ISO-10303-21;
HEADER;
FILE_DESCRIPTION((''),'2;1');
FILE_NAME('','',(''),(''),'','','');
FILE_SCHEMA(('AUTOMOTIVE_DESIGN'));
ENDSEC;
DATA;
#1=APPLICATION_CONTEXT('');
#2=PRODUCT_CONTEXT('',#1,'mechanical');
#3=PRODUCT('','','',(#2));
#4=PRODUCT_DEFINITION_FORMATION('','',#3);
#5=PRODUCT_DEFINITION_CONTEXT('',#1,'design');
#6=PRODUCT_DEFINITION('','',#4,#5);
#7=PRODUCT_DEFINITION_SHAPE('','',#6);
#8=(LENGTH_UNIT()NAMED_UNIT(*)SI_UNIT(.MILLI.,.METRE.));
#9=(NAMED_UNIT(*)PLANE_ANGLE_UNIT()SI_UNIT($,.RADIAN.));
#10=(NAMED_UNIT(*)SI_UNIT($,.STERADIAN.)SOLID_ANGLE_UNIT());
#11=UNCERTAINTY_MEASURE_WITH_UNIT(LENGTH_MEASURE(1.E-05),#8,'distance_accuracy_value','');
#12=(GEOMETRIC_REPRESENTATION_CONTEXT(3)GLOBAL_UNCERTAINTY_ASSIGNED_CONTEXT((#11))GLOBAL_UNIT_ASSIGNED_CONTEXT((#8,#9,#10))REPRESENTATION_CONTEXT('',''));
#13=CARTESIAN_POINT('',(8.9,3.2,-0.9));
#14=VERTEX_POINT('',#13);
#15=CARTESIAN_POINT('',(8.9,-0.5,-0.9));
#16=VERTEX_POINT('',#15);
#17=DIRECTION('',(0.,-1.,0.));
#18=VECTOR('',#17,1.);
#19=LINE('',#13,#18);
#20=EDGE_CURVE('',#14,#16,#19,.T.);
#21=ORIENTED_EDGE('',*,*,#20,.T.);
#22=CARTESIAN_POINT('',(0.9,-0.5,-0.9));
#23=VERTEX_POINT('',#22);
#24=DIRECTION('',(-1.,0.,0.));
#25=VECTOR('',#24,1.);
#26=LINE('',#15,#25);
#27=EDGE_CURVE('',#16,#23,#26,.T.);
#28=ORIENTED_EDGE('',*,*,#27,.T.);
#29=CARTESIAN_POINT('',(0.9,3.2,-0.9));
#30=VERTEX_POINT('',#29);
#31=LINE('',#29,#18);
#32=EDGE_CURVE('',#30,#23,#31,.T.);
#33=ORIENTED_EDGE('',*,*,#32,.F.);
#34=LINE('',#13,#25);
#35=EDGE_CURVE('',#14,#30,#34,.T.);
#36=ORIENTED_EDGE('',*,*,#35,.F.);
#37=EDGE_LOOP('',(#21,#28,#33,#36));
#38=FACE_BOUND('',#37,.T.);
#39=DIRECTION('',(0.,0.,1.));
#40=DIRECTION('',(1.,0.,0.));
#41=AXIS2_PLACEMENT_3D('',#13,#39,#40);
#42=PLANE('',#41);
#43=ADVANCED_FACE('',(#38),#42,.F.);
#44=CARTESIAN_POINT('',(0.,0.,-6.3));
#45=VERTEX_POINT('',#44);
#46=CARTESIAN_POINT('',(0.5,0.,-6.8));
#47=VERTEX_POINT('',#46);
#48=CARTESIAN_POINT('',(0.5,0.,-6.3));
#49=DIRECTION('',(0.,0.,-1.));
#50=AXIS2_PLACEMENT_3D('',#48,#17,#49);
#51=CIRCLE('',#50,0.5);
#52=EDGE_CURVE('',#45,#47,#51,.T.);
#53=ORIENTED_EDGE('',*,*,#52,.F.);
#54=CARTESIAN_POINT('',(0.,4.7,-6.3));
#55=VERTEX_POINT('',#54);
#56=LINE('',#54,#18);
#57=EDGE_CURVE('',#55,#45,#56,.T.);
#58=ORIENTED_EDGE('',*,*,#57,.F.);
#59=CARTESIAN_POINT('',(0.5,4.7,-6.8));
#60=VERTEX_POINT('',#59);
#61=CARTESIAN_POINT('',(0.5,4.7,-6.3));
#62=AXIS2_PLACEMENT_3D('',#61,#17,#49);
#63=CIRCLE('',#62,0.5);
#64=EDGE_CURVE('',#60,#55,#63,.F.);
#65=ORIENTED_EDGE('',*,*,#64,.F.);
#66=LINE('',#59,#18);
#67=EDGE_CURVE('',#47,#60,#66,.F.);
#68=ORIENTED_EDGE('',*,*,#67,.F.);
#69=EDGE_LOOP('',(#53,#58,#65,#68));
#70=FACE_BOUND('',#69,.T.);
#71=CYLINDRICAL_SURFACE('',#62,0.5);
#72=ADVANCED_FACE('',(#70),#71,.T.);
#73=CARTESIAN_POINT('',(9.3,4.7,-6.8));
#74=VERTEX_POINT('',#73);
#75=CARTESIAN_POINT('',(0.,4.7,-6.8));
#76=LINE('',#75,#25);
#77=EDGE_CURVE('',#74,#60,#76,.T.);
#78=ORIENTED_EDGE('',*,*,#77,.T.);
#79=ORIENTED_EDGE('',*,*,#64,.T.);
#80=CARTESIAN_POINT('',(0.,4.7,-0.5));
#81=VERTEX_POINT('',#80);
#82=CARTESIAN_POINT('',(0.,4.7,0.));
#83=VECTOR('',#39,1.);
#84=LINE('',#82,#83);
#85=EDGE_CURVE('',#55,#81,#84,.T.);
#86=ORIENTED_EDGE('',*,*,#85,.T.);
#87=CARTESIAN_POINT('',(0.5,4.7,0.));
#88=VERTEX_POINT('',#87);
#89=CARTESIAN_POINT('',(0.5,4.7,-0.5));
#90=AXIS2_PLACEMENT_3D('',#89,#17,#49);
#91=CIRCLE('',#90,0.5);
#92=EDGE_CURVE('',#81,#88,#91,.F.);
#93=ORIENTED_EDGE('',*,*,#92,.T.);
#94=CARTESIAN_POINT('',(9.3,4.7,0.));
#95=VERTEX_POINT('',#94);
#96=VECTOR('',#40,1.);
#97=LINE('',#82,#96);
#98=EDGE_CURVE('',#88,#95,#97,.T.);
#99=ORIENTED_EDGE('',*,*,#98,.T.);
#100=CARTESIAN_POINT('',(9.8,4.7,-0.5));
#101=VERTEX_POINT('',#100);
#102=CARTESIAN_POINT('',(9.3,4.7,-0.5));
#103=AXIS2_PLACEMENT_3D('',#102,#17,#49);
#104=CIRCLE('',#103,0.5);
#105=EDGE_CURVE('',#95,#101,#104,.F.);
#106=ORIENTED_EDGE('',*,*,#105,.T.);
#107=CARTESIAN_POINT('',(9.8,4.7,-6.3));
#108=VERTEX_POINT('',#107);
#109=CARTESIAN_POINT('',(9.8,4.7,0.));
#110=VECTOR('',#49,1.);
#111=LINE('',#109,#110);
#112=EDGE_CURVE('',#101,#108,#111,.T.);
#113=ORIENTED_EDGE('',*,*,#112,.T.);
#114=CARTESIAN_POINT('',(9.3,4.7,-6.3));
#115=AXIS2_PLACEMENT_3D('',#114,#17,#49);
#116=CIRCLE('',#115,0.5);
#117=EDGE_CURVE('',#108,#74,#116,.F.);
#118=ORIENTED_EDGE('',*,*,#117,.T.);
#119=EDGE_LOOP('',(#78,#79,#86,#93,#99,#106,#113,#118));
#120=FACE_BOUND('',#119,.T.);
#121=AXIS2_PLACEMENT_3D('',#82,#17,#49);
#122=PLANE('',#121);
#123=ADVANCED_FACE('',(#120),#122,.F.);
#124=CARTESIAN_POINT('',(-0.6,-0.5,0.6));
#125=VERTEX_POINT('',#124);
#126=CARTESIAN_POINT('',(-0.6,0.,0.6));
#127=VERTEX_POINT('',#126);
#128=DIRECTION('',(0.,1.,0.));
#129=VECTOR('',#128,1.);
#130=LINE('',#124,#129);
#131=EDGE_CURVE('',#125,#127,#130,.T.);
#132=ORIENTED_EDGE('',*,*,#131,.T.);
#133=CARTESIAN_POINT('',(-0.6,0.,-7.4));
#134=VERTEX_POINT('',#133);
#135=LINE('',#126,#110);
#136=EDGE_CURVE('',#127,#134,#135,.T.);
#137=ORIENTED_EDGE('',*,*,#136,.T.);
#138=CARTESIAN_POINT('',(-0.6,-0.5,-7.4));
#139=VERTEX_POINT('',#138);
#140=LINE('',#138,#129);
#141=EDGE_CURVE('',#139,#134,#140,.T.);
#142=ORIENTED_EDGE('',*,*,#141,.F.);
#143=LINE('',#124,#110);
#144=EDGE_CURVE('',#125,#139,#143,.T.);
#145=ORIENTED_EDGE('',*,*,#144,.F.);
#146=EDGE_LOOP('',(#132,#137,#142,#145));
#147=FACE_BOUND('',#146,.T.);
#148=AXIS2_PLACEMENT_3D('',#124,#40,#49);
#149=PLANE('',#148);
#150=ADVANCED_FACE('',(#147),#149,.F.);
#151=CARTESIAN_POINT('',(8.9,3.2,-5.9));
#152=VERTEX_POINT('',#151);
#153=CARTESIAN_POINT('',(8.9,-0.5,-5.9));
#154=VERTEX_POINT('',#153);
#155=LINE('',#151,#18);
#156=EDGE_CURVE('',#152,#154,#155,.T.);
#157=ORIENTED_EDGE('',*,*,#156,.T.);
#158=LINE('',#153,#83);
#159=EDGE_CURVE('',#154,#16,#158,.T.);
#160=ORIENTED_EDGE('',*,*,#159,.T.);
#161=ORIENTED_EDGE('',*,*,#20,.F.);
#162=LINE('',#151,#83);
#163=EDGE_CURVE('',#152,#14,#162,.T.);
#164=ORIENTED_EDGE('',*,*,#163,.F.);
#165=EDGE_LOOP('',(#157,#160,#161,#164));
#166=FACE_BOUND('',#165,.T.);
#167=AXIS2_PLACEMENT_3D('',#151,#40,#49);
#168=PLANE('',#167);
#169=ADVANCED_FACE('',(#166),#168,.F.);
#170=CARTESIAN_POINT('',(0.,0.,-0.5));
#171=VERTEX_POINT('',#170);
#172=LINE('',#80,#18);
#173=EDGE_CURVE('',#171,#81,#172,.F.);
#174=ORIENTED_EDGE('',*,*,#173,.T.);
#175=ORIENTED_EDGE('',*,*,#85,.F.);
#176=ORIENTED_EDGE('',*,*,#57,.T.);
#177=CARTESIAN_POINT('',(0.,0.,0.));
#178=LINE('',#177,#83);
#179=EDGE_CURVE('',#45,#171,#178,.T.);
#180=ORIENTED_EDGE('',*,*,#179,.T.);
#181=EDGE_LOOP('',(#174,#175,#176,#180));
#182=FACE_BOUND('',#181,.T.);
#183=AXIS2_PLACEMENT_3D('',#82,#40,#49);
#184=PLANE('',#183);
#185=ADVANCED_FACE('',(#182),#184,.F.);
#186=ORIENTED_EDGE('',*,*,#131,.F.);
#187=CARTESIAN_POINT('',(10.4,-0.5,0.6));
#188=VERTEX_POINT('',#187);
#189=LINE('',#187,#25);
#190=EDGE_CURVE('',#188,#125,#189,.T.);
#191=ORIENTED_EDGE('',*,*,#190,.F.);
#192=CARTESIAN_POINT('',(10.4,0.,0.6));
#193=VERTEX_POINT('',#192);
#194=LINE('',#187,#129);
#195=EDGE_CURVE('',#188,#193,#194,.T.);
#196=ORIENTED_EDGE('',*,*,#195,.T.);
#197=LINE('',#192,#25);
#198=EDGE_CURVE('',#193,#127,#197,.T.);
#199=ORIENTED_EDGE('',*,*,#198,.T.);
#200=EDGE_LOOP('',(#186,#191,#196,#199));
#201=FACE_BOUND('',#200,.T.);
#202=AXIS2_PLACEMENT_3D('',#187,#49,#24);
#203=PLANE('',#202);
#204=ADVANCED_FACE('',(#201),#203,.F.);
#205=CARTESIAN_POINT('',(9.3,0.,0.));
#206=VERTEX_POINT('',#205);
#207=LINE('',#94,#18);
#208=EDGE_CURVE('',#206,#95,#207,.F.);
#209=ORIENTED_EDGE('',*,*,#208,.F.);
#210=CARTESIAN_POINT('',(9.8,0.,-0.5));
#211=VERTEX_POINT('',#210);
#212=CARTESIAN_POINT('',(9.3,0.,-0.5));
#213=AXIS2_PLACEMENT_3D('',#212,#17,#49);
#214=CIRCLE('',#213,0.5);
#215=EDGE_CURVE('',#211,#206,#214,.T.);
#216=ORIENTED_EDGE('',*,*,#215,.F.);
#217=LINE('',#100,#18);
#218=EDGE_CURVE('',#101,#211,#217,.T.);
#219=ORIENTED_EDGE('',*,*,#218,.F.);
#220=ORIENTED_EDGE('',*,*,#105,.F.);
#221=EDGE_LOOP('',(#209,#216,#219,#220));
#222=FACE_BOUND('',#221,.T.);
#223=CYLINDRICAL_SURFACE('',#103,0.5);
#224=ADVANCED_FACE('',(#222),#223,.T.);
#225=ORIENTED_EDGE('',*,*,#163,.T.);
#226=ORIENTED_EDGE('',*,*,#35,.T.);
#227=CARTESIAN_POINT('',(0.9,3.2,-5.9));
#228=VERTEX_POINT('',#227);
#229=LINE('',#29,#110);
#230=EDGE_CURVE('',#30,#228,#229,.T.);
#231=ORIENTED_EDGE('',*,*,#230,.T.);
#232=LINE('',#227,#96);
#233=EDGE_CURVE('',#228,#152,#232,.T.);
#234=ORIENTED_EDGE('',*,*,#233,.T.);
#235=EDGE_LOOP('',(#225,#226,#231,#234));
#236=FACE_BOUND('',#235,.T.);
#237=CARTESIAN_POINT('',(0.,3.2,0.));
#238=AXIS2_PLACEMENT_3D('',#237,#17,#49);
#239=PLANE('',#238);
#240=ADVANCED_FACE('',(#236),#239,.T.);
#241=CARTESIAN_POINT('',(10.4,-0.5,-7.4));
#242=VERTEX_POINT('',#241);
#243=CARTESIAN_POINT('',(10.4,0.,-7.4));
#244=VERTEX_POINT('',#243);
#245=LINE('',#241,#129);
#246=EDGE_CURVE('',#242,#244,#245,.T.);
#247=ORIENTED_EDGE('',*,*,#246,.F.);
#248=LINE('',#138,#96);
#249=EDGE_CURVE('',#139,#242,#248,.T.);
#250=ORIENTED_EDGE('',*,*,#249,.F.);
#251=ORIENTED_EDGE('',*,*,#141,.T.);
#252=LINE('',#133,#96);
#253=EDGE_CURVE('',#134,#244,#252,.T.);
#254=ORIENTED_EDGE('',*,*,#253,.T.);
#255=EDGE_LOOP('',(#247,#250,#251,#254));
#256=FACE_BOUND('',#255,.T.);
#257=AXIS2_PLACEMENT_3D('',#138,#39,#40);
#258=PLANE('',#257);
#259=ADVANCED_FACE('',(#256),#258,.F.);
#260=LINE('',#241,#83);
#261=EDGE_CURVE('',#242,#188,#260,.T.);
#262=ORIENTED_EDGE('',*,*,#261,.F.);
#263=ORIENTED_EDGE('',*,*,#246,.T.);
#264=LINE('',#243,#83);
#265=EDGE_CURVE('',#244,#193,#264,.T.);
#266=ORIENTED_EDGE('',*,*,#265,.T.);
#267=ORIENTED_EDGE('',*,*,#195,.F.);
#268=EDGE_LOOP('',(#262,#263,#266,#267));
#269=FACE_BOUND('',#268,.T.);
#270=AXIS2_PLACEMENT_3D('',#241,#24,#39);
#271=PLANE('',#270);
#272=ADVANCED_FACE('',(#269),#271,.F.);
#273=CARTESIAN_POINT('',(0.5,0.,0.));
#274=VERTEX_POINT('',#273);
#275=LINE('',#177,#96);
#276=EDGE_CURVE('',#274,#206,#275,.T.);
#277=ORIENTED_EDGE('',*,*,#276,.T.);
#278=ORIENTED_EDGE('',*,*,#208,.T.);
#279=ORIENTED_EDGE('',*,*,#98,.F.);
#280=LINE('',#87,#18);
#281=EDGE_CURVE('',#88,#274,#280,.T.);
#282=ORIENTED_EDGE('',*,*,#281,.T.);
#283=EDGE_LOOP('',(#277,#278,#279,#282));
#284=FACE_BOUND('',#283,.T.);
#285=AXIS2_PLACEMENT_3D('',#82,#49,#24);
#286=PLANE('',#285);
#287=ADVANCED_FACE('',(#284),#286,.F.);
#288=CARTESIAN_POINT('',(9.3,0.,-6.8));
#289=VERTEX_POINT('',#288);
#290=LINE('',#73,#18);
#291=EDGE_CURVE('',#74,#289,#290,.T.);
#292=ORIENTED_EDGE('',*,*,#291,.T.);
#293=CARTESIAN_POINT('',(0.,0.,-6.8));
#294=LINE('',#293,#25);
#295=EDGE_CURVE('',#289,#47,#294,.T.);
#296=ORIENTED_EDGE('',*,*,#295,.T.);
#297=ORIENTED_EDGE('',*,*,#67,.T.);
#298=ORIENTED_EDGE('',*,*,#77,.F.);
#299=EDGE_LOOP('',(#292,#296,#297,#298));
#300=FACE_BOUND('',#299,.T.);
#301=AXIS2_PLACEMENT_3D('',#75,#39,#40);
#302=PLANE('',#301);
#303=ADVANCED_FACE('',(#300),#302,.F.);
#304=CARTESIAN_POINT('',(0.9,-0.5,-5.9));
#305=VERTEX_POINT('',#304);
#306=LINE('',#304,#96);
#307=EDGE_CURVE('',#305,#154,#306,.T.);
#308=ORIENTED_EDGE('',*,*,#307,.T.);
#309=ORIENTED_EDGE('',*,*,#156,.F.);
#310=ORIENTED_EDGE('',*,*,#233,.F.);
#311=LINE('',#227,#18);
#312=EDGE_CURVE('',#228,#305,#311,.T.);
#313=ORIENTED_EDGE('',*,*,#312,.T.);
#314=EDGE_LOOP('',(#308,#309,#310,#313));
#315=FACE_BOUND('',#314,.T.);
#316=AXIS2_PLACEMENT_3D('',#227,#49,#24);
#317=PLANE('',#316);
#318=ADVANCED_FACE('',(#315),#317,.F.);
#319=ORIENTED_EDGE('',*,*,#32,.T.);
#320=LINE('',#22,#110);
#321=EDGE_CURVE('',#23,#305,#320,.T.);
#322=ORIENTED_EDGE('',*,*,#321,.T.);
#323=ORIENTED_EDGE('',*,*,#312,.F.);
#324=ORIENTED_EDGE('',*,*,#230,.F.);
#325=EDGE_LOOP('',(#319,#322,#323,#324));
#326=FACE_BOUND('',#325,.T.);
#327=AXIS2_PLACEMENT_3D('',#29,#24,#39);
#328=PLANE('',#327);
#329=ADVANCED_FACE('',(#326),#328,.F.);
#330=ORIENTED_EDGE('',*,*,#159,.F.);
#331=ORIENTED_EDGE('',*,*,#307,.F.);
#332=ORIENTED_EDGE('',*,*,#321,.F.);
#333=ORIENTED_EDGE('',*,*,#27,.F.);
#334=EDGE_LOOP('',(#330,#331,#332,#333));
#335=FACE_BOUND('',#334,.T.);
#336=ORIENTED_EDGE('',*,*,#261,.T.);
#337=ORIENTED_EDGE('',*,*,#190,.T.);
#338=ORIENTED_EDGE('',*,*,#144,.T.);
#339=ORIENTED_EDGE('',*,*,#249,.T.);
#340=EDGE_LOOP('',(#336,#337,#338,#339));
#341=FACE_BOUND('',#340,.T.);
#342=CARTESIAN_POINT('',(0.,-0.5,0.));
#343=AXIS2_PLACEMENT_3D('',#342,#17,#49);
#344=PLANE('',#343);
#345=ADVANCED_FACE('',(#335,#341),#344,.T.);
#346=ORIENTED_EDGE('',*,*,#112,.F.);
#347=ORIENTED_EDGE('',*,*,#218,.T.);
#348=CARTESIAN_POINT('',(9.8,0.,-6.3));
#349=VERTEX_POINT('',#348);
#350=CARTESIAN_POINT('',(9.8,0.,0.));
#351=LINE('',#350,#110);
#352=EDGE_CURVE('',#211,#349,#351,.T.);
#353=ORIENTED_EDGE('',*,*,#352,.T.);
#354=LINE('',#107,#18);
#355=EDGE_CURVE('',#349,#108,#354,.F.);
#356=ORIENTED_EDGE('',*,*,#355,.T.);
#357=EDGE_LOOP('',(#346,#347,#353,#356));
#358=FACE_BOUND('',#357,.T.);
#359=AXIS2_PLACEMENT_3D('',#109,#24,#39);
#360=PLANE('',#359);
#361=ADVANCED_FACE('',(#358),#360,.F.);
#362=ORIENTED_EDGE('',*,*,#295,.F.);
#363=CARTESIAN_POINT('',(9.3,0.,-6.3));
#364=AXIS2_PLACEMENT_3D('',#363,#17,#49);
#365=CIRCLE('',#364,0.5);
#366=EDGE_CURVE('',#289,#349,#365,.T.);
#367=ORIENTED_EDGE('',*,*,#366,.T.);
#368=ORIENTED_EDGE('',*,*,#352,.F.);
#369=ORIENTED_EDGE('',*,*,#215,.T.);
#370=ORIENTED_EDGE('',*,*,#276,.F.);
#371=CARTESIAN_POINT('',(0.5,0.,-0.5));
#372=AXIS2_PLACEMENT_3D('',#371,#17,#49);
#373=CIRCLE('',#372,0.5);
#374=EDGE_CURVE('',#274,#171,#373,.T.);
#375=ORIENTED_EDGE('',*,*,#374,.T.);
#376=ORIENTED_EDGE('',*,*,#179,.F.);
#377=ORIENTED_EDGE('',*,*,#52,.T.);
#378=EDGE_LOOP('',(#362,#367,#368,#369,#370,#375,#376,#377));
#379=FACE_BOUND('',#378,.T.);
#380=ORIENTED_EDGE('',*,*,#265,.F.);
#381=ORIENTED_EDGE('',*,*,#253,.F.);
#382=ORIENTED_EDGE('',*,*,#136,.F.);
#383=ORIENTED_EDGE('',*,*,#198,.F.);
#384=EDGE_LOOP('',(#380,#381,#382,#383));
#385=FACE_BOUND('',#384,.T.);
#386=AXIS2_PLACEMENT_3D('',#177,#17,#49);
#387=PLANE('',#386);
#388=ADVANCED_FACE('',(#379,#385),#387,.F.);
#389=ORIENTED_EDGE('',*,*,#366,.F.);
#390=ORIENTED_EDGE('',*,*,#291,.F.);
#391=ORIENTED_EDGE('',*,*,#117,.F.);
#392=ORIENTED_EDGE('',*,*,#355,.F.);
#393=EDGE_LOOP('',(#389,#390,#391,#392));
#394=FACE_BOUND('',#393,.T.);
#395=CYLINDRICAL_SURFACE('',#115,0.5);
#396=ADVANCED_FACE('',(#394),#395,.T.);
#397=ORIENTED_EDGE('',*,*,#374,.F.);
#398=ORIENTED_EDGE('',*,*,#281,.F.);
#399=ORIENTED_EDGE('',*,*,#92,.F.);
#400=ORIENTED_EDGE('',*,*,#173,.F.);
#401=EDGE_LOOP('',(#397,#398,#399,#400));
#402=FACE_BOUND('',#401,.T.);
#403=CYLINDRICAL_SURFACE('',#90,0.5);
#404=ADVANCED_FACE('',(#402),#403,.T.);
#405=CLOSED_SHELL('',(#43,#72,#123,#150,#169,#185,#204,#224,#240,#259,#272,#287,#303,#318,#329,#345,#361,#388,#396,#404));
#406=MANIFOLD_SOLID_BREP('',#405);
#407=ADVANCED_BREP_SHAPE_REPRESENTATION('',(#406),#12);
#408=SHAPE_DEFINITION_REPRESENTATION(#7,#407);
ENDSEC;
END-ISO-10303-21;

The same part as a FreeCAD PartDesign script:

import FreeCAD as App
import Part
import Sketcher
Q = App.Units.Quantity


def edges_at(feature, points):
    """Names of the edges that pass closest to the given points."""
    edges = feature.Shape.Edges
    near = lambda p: min(range(len(edges)), key=lambda i: edges[i].distToShape(Part.Vertex(*p))[0])
    return sorted({f"Edge{near(p) + 1}" for p in points})

doc = App.newDocument("Part")
body = doc.addObject("PartDesign::Body", "Body")

sketch1 = body.newObject("Sketcher::SketchObject", "Sketch")
sketch1.AttachmentSupport = (doc.getObject("XZ_Plane"), [""])
sketch1.MapMode = "FlatFace"
sketch1.addGeometry([
    Part.LineSegment(App.Vector(0, -7, 0), App.Vector(0, 0, 0)),
    Part.LineSegment(App.Vector(0, 0, 0), App.Vector(10, 0, 0)),
    Part.LineSegment(App.Vector(10, 0, 0), App.Vector(10, -7, 0)),
    Part.LineSegment(App.Vector(10, -7, 0), App.Vector(0, -7, 0)),
], False)
sketch1.addConstraint([
    Sketcher.Constraint("Coincident", 0, 2, 1, 1),
    Sketcher.Constraint("Coincident", 1, 2, 2, 1),
    Sketcher.Constraint("Coincident", 2, 2, 3, 1),
    Sketcher.Constraint("Coincident", 3, 2, 0, 1),
    Sketcher.Constraint("Vertical", 0),
    Sketcher.Constraint("Horizontal", 1),
    Sketcher.Constraint("Vertical", 2),
    Sketcher.Constraint("Horizontal", 3),
    Sketcher.Constraint("Coincident", 0, 2, -1, 1),
    Sketcher.Constraint("DistanceX", 1, 1, 1, 2, Q("9.8 mm")),
    Sketcher.Constraint("DistanceY", 0, 1, 0, 2, Q("6.8 mm")),
])
pad1 = body.newObject("PartDesign::Pad", "Pad")
pad1.Profile = sketch1
pad1.Length = 4.7
pad1.Reversed = True

sketch2 = body.newObject("Sketcher::SketchObject", "Sketch001")
sketch2.AttachmentSupport = (doc.getObject("XZ_Plane"), [""])
sketch2.MapMode = "FlatFace"
sketch2.addGeometry([
    Part.LineSegment(App.Vector(-1, 1, 0), App.Vector(-1, -7, 0)),
    Part.LineSegment(App.Vector(-1, -7, 0), App.Vector(10, -7, 0)),
    Part.LineSegment(App.Vector(10, -7, 0), App.Vector(10, 1, 0)),
    Part.LineSegment(App.Vector(10, 1, 0), App.Vector(-1, 1, 0)),
], False)
sketch2.addConstraint([
    Sketcher.Constraint("Coincident", 0, 2, 1, 1),
    Sketcher.Constraint("Coincident", 1, 2, 2, 1),
    Sketcher.Constraint("Coincident", 2, 2, 3, 1),
    Sketcher.Constraint("Coincident", 3, 2, 0, 1),
    Sketcher.Constraint("Vertical", 0),
    Sketcher.Constraint("Horizontal", 1),
    Sketcher.Constraint("Vertical", 2),
    Sketcher.Constraint("Horizontal", 3),
    Sketcher.Constraint("DistanceX", 1, 1, 1, 2, Q("11 mm")),
    Sketcher.Constraint("DistanceY", 0, 2, 0, 1, Q("8 mm")),
    Sketcher.Constraint("DistanceX", 0, 2, -1, 1, Q("0.6 mm")),
    Sketcher.Constraint("DistanceY", 0, 2, -1, 1, Q("7.4 mm")),
])
pad2 = body.newObject("PartDesign::Pad", "Pad001")
pad2.Profile = sketch2
pad2.Length = 0.5

sketch3 = body.newObject("Sketcher::SketchObject", "Sketch002")
sketch3.AttachmentSupport = (doc.getObject("XZ_Plane"), [""])
sketch3.MapMode = "FlatFace"
sketch3.AttachmentOffset = App.Placement(App.Vector(0, 0, 0.5), App.Rotation())
sketch3.addGeometry([
    Part.LineSegment(App.Vector(1, -1, 0), App.Vector(1, -6, 0)),
    Part.LineSegment(App.Vector(1, -6, 0), App.Vector(9, -6, 0)),
    Part.LineSegment(App.Vector(9, -6, 0), App.Vector(9, -1, 0)),
    Part.LineSegment(App.Vector(9, -1, 0), App.Vector(1, -1, 0)),
], False)
sketch3.addConstraint([
    Sketcher.Constraint("Coincident", 0, 2, 1, 1),
    Sketcher.Constraint("Coincident", 1, 2, 2, 1),
    Sketcher.Constraint("Coincident", 2, 2, 3, 1),
    Sketcher.Constraint("Coincident", 3, 2, 0, 1),
    Sketcher.Constraint("Vertical", 0),
    Sketcher.Constraint("Horizontal", 1),
    Sketcher.Constraint("Vertical", 2),
    Sketcher.Constraint("Horizontal", 3),
    Sketcher.Constraint("DistanceX", 1, 1, 1, 2, Q("8 mm")),
    Sketcher.Constraint("DistanceY", 0, 2, 0, 1, Q("5 mm")),
    Sketcher.Constraint("DistanceX", -1, 1, 0, 2, Q("0.9 mm")),
    Sketcher.Constraint("DistanceY", 0, 2, -1, 1, Q("5.9 mm")),
])
pocket1 = body.newObject("PartDesign::Pocket", "Pocket")
pocket1.Profile = sketch3
pocket1.Length = 3.7
doc.recompute()

fillet = body.newObject("PartDesign::Fillet", "Fillet")
fillet.Base = (pocket1, edges_at(pocket1, [
    (0, 2.35, -6.8),
    (9.8, 2.35, -6.8),
    (9.8, 2.35, 0),
    (0, 2.35, 0),
]))
fillet.Radius = 0.5

doc.recompute()
